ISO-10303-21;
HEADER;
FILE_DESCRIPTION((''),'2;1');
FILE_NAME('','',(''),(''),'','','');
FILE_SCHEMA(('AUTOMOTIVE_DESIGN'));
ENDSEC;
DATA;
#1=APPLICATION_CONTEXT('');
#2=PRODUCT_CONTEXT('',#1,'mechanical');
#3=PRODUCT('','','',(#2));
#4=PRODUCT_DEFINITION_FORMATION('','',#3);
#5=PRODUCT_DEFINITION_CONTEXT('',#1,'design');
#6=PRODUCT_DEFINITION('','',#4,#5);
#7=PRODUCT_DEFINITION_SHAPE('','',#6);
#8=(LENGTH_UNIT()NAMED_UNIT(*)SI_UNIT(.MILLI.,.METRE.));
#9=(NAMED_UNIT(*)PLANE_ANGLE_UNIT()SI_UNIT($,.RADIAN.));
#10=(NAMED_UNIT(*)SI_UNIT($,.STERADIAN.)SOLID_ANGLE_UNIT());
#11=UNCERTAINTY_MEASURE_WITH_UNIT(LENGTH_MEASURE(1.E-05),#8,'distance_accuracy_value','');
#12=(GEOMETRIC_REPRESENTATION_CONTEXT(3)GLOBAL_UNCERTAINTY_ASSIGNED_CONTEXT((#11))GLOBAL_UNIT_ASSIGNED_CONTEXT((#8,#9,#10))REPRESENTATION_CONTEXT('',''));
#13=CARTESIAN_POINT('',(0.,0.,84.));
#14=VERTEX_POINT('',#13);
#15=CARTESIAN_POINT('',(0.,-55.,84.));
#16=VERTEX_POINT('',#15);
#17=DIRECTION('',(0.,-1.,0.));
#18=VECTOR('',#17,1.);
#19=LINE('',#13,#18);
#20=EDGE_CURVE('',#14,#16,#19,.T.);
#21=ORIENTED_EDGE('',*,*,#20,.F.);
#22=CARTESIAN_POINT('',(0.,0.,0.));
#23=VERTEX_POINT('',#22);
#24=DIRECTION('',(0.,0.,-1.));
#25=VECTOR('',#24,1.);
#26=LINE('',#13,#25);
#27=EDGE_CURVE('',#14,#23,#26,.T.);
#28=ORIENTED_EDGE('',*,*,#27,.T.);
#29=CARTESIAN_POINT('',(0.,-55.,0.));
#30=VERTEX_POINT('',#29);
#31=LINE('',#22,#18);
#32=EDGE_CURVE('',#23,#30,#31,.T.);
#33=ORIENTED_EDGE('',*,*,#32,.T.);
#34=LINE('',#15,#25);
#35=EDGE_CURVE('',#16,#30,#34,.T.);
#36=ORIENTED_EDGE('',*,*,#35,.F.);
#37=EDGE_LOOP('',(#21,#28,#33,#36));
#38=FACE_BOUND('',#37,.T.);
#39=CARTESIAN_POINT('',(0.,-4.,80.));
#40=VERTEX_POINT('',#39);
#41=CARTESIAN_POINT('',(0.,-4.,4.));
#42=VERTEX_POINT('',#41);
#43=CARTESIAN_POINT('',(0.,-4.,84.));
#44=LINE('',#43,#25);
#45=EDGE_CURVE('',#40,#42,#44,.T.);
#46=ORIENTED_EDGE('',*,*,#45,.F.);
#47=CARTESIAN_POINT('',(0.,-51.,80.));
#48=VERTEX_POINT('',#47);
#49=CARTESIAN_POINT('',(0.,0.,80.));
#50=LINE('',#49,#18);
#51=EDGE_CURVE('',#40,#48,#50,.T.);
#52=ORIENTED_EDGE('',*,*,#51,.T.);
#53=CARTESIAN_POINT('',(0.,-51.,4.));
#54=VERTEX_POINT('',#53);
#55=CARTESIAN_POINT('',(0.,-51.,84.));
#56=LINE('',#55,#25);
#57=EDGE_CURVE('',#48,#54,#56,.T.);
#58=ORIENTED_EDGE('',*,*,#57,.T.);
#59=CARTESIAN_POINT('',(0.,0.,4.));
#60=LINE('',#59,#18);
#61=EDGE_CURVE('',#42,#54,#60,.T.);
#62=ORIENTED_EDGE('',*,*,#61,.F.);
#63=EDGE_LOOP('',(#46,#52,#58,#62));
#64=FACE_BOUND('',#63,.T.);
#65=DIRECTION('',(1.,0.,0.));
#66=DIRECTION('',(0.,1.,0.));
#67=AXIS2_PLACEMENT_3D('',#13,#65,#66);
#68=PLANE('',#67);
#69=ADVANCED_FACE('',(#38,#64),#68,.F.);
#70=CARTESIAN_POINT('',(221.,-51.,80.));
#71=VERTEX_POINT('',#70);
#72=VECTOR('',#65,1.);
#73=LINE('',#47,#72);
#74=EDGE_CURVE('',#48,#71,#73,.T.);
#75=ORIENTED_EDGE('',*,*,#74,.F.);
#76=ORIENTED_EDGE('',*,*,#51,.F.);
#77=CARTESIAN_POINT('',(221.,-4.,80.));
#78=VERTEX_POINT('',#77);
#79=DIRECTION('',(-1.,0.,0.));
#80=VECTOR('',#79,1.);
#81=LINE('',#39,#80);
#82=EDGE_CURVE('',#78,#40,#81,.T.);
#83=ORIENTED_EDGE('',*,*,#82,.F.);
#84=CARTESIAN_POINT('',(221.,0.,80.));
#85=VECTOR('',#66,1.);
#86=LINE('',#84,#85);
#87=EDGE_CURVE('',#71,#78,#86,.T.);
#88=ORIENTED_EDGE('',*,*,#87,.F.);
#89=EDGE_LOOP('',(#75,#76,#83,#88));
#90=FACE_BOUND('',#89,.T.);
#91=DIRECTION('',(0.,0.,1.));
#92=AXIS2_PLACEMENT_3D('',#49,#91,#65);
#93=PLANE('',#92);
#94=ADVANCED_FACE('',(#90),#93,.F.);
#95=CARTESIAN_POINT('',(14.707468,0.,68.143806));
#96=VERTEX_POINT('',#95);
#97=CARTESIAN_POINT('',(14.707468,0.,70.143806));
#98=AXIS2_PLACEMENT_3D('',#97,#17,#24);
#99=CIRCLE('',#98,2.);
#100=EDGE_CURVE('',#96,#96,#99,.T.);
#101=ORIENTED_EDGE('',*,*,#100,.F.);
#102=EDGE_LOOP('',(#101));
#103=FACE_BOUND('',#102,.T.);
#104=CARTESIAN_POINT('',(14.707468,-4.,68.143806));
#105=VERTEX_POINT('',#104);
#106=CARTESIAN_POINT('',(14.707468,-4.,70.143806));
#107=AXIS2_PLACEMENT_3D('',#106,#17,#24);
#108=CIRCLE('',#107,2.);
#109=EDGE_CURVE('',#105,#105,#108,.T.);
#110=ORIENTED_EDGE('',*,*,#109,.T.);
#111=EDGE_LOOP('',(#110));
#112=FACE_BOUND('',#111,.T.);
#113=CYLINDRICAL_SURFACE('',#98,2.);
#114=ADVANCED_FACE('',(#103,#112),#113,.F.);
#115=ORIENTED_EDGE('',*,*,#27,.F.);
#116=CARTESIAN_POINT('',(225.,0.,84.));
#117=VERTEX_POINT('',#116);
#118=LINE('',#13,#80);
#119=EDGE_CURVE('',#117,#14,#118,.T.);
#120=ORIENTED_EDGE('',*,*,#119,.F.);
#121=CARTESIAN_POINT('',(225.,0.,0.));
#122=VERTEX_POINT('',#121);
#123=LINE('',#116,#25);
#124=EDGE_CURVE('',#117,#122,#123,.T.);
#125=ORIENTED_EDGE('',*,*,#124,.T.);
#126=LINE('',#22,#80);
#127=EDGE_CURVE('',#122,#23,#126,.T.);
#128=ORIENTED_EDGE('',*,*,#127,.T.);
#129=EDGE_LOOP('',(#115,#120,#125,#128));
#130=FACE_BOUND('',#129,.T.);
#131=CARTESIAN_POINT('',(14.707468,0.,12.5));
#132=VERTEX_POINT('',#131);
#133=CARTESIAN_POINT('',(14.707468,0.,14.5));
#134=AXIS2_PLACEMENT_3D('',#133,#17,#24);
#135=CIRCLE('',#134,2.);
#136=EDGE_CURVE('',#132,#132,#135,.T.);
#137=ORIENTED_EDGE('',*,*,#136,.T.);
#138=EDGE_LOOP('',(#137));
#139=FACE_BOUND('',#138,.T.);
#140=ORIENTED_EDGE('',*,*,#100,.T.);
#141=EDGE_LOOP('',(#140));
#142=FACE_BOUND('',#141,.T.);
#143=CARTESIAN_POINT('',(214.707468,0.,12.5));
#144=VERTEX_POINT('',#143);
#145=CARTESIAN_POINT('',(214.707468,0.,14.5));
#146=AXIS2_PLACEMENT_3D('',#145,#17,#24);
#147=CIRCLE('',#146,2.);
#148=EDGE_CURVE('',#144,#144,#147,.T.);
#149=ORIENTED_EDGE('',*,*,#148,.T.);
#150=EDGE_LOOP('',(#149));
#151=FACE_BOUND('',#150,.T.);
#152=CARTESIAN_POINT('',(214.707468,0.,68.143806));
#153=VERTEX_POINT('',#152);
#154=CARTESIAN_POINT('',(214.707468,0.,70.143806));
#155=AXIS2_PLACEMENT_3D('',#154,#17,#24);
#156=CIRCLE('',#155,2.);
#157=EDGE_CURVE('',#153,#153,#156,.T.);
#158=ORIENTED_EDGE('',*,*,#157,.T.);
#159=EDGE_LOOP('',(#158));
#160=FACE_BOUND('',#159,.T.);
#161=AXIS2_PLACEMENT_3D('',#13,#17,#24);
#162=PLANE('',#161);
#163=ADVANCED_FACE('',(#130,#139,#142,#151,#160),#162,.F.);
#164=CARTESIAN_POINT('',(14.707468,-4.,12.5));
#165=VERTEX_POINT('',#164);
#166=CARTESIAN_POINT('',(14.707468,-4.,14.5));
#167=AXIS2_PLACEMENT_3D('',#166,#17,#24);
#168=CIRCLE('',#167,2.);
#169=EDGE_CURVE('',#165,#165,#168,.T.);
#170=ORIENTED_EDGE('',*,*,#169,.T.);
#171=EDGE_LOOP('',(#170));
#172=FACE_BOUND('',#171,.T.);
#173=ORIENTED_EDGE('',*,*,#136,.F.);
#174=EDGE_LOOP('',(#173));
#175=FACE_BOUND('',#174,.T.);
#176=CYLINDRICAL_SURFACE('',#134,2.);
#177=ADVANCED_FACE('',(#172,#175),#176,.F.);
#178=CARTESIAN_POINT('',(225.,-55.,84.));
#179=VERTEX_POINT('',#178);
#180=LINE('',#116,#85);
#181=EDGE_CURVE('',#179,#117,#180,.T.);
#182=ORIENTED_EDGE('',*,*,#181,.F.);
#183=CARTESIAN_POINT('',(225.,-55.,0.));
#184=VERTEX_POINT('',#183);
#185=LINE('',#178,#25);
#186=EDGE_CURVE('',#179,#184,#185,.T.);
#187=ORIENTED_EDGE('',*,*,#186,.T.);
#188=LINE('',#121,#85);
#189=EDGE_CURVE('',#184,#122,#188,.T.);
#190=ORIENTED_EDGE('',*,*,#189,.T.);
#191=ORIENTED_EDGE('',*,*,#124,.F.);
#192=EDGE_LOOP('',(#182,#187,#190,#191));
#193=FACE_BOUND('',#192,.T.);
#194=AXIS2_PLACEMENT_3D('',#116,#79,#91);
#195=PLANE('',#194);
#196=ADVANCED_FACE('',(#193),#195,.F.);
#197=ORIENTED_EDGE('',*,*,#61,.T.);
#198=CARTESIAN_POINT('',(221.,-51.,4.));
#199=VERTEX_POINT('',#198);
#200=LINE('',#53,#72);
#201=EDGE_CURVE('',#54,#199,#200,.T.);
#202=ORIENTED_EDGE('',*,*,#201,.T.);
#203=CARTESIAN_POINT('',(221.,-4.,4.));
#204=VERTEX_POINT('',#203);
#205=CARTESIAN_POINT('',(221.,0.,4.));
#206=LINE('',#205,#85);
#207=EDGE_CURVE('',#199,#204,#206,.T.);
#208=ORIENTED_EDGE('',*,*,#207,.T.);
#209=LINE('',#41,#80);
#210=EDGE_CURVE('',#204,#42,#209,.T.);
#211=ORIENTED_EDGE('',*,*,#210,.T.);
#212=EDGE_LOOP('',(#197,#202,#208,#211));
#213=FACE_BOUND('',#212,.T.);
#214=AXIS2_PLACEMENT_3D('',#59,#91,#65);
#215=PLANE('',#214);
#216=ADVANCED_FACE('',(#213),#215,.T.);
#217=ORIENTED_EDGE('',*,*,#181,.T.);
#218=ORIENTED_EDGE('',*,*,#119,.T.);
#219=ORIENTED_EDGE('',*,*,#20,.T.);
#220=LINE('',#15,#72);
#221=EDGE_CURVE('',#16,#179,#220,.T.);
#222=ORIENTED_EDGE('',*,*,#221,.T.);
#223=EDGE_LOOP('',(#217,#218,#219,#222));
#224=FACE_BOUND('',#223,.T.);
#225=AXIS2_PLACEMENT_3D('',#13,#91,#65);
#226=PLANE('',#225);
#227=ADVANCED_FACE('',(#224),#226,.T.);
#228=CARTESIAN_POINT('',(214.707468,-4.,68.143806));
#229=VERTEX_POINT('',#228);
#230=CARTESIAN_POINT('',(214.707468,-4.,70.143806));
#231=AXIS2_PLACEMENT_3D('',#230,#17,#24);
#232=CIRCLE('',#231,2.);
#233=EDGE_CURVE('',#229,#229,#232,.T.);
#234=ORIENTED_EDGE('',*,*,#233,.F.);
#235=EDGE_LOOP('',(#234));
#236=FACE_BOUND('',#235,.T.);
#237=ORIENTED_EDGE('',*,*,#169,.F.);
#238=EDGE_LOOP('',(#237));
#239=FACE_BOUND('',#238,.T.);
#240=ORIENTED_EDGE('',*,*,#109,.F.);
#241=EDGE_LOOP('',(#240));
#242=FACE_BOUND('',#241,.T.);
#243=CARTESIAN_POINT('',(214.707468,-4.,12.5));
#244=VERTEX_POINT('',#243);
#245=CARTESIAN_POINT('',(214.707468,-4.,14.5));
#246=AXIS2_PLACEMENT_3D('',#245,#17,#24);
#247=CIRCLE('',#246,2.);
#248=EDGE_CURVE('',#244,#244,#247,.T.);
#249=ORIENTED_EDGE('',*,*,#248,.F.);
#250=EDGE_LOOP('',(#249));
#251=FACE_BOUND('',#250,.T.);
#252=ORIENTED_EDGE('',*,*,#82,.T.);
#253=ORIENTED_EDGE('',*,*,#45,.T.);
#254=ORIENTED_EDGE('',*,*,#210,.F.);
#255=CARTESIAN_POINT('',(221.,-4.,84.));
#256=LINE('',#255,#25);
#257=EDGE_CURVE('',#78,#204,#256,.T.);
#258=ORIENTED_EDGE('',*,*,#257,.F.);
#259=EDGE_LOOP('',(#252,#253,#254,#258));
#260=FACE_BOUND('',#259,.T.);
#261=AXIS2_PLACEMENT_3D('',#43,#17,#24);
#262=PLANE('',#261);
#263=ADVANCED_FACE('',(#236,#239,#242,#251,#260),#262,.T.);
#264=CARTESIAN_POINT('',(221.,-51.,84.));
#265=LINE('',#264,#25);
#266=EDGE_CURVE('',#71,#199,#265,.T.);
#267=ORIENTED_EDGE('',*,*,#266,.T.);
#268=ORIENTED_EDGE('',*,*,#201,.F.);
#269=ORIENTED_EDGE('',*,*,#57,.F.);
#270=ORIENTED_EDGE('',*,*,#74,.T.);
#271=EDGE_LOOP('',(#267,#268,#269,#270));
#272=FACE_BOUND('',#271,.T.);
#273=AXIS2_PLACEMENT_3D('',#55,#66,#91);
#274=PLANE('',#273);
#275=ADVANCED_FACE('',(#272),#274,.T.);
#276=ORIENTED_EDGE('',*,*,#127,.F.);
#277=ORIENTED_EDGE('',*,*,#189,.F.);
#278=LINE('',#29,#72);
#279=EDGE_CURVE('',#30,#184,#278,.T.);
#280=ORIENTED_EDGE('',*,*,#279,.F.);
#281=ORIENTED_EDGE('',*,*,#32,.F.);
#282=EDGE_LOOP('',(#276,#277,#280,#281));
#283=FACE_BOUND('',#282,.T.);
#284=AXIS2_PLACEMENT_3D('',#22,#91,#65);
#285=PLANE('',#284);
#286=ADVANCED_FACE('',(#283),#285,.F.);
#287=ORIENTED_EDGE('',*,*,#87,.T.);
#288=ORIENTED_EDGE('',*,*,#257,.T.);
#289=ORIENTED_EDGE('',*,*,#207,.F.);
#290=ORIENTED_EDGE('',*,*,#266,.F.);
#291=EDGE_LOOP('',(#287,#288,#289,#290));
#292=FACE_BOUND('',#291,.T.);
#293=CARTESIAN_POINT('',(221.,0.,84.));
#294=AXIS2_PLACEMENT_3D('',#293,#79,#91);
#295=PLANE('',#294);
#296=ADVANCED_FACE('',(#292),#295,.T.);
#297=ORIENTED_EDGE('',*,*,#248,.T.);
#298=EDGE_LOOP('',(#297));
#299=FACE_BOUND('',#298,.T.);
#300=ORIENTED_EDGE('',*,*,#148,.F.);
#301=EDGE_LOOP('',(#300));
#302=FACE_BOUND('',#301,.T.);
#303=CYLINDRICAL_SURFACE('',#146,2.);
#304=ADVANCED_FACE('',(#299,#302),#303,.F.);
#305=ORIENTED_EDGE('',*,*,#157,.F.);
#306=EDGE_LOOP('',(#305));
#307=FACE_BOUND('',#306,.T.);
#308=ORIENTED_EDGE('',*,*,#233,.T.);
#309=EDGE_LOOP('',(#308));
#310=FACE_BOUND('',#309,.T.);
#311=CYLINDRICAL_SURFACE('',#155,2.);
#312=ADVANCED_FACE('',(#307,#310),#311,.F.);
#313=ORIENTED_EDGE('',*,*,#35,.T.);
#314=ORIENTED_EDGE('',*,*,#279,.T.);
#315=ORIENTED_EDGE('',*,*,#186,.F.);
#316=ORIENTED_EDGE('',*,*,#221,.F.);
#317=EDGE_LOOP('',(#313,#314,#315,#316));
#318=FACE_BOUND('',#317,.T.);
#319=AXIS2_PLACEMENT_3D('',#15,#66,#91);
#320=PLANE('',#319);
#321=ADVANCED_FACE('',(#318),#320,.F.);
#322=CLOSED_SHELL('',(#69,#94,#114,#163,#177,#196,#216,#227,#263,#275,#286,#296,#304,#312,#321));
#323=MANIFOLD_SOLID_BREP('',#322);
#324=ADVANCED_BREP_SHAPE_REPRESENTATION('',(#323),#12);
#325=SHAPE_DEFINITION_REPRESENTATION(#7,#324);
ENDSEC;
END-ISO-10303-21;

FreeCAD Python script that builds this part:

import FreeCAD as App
import Part
import Sketcher
from FreeCAD import Vector
Q = App.Units.Quantity


def faces_at(feature, points):
    """Names of the faces that lie closest to the given points."""
    faces = feature.Shape.Faces
    near = lambda p: min(range(len(faces)), key=lambda i: faces[i].distToShape(Part.Vertex(*p))[0])
    return sorted({f"Face{near(p) + 1}" for p in points})

doc = App.newDocument("Part")
params = doc.addObject("Spreadsheet::Sheet", "Params")
for row, (alias, value) in enumerate([
    ("sketch1_width", "225 mm"),
    ("sketch1_height", "55 mm"),
    ("pad1_length", "84 mm"),
    ("thickness_wall", "4 mm"),
    ("sketch2_diameter", "4 mm"),
], start=1):
    params.set(f"A{row}", alias)
    params.set(f"B{row}", "=" + value)
    params.setAlias(f"B{row}", alias)

body = doc.addObject("PartDesign::Body", "Body")

# Sketch on XY plane
sketch1 = body.newObject("Sketcher::SketchObject", "Sketch")
sketch1.AttachmentSupport = (doc.getObject("XY_Plane"), [""])
sketch1.MapMode = "FlatFace"
sketch1.addGeometry([
    Part.LineSegment(Vector(0, 0, 0), Vector(0, -55, 0)),
    Part.LineSegment(Vector(0, -55, 0), Vector(225, -55, 0)),
    Part.LineSegment(Vector(225, -55, 0), Vector(225, 0, 0)),
    Part.LineSegment(Vector(225, 0, 0), Vector(0, 0, 0)),
], False)
sketch1.addConstraint([
    Sketcher.Constraint("Coincident", 0, 2, 1, 1),
    Sketcher.Constraint("Coincident", 1, 2, 2, 1),
    Sketcher.Constraint("Coincident", 2, 2, 3, 1),
    Sketcher.Constraint("Coincident", 3, 2, 0, 1),
    Sketcher.Constraint("Vertical", 0),
    Sketcher.Constraint("Horizontal", 1),
    Sketcher.Constraint("Vertical", 2),
    Sketcher.Constraint("Horizontal", 3),
    Sketcher.Constraint("Coincident", 3, 2, -1, 1),
    Sketcher.Constraint("DistanceX", 1, 1, 1, 2, Q("225 mm")),
    Sketcher.Constraint("DistanceY", 0, 2, 0, 1, Q("55 mm")),
])
sketch1.setExpression("Constraints[9]", "Params.sketch1_width")
sketch1.setExpression("Constraints[10]", "Params.sketch1_height")
pad1 = body.newObject("PartDesign::Pad", "Pad")
pad1.Profile = sketch1
pad1.setExpression("Length", "Params.pad1_length")
doc.recompute()

thickness = body.newObject("PartDesign::Thickness", "Thickness")
thickness.Base = (pad1, faces_at(pad1, [(0, -27.5, 42)]))
thickness.setExpression("Value", "Params.thickness_wall")
thickness.Reversed = True
thickness.Join = "Intersection"

# Sketch on XZ plane
sketch2 = body.newObject("Sketcher::SketchObject", "Sketch001")
sketch2.AttachmentSupport = (doc.getObject("XZ_Plane"), [""])
sketch2.MapMode = "FlatFace"
sketch2.AttachmentOffset = App.Placement(Vector(0, 0, 4), App.Rotation())
sketch2.addGeometry([
    Part.Circle(Vector(14.7, 70.1, 0), Vector(0, 0, 1), 2),
    Part.Circle(Vector(14.7, 14.5, 0), Vector(0, 0, 1), 2),
    Part.Circle(Vector(214.7, 70.1, 0), Vector(0, 0, 1), 2),
    Part.Circle(Vector(214.7, 14.5, 0), Vector(0, 0, 1), 2),
], False)
sketch2.addConstraint([
    Sketcher.Constraint("Equal", 0, 1),
    Sketcher.Constraint("Equal", 1, 2),
    Sketcher.Constraint("Equal", 2, 3),
    Sketcher.Constraint("Horizontal", 0, 3, 2, 3),
    Sketcher.Constraint("Horizontal", 1, 3, 3, 3),
    Sketcher.Constraint("Vertical", 0, 3, 1, 3),
    Sketcher.Constraint("Vertical", 2, 3, 3, 3),
    Sketcher.Constraint("Diameter", 0, Q("4 mm")),
    Sketcher.Constraint("DistanceX", 0, 3, 2, 3, Q("200 mm")),
    Sketcher.Constraint("DistanceY", -1, 1, 1, 3, Q("14.5 mm")),
    Sketcher.Constraint("DistanceX", -1, 1, 0, 3, Q("14.707468 mm")),
    Sketcher.Constraint("DistanceY", -1, 1, 0, 3, Q("70.143806 mm")),
])
sketch2.setExpression("Constraints[7]", "Params.sketch2_diameter")
pocket1 = body.newObject("PartDesign::Pocket", "Pocket")
pocket1.Profile = sketch2
pocket1.Type = "ThroughAll"

doc.recompute()
